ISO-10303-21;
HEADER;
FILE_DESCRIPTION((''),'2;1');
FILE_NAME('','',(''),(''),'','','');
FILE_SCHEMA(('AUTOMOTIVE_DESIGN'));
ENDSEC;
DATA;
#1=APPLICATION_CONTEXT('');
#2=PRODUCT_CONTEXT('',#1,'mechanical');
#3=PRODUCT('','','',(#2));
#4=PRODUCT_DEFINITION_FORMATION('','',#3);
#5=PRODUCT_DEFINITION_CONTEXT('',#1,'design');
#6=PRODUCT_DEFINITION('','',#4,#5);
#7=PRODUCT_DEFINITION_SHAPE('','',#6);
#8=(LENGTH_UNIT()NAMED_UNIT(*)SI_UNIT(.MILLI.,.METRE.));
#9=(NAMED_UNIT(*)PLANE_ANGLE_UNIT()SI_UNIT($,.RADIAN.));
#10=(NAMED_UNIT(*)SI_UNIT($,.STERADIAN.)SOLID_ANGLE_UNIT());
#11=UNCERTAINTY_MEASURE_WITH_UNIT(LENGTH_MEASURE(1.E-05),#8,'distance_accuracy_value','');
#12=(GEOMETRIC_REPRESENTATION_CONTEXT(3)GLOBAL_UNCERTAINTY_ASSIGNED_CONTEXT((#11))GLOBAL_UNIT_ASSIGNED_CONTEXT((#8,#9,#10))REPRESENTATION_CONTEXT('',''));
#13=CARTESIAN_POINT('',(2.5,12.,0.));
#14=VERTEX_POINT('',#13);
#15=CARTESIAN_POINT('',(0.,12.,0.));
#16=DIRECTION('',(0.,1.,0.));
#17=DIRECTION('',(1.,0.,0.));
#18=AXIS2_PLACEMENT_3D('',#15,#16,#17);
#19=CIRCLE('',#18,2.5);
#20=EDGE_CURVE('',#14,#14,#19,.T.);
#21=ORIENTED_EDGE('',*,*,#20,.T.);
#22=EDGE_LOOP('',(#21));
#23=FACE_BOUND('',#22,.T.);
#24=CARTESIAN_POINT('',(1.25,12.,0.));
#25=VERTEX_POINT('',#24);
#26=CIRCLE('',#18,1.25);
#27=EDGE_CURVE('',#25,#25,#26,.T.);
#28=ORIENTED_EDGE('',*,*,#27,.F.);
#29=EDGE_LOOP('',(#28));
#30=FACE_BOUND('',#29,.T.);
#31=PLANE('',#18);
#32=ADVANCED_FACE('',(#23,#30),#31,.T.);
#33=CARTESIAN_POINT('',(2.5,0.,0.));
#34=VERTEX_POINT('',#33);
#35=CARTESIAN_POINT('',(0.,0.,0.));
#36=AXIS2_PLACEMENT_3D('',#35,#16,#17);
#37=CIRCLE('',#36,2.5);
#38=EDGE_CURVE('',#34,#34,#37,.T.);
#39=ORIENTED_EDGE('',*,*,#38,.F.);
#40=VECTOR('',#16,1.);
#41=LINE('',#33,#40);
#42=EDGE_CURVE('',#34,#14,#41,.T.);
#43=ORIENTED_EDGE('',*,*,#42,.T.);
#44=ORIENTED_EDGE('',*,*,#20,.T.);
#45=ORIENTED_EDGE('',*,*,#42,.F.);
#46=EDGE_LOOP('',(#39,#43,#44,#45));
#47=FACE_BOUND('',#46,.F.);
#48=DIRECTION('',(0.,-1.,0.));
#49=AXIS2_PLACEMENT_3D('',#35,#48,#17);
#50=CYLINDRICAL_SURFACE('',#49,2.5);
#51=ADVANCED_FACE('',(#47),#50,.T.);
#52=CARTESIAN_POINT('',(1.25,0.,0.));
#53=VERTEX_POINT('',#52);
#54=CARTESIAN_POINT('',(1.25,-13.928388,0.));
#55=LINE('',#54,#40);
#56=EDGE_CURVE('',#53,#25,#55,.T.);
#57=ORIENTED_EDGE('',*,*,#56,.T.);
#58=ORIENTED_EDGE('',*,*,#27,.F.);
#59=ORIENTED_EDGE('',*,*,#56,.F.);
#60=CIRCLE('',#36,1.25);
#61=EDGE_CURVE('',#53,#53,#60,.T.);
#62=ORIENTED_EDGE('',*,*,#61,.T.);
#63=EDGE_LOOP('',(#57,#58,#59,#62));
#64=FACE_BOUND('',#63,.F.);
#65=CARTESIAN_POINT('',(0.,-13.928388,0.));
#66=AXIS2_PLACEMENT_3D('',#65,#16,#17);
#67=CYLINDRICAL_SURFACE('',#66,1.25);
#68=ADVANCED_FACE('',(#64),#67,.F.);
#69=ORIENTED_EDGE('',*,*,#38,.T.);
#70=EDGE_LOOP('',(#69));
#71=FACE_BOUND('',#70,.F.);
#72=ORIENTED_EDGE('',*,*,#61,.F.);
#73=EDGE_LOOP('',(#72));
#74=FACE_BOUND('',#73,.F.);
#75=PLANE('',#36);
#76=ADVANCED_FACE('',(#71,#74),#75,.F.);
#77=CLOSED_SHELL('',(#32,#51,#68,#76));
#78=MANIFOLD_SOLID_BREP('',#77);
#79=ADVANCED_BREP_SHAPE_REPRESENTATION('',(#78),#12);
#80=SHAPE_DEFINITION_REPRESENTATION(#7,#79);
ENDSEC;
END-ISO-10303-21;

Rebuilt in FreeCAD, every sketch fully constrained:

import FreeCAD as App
import Part
import Sketcher
Q = App.Units.Quantity

doc = App.newDocument("Part")
body = doc.addObject("PartDesign::Body", "Body")

sketch1 = doc.addObject("Sketcher::SketchObject", "Sketch")
body.addObject(sketch1)
sketch1.AttachmentSupport = (doc.XZ_Plane, [""])
sketch1.MapMode = "FlatFace"
sketch1.addGeometry(Part.Circle(App.Vector(0, 0, 0), App.Vector(0, 0, 1), 2.5), False)
sketch1.addConstraint(Sketcher.Constraint("Coincident", 0, 3, -1, 1))
sketch1.addConstraint(Sketcher.Constraint("Diameter", 0, Q("5 mm")))
pad1 = doc.addObject("PartDesign::Pad", "Pad")
body.addObject(pad1)
pad1.Profile = sketch1
pad1.Length = 12
pad1.Reversed = True

sketch2 = doc.addObject("Sketcher::SketchObject", "Sketch001")
body.addObject(sketch2)
sketch2.AttachmentSupport = (doc.XZ_Plane, [""])
sketch2.MapMode = "FlatFace"
sketch2.addGeometry(Part.Circle(App.Vector(0, 0, 0), App.Vector(0, 0, 1), 1.25), False)
sketch2.addConstraint(Sketcher.Constraint("Coincident", 0, 3, -1, 1))
sketch2.addConstraint(Sketcher.Constraint("Diameter", 0, Q("2.5 mm")))
doc.recompute()
hole = doc.addObject("PartDesign::Hole", "Hole")
body.addObject(hole)
hole.Profile = sketch2
hole.ThreadType = "None"
hole.Diameter = 2.5
hole.DepthType = "ThroughAll"

doc.recompute()
